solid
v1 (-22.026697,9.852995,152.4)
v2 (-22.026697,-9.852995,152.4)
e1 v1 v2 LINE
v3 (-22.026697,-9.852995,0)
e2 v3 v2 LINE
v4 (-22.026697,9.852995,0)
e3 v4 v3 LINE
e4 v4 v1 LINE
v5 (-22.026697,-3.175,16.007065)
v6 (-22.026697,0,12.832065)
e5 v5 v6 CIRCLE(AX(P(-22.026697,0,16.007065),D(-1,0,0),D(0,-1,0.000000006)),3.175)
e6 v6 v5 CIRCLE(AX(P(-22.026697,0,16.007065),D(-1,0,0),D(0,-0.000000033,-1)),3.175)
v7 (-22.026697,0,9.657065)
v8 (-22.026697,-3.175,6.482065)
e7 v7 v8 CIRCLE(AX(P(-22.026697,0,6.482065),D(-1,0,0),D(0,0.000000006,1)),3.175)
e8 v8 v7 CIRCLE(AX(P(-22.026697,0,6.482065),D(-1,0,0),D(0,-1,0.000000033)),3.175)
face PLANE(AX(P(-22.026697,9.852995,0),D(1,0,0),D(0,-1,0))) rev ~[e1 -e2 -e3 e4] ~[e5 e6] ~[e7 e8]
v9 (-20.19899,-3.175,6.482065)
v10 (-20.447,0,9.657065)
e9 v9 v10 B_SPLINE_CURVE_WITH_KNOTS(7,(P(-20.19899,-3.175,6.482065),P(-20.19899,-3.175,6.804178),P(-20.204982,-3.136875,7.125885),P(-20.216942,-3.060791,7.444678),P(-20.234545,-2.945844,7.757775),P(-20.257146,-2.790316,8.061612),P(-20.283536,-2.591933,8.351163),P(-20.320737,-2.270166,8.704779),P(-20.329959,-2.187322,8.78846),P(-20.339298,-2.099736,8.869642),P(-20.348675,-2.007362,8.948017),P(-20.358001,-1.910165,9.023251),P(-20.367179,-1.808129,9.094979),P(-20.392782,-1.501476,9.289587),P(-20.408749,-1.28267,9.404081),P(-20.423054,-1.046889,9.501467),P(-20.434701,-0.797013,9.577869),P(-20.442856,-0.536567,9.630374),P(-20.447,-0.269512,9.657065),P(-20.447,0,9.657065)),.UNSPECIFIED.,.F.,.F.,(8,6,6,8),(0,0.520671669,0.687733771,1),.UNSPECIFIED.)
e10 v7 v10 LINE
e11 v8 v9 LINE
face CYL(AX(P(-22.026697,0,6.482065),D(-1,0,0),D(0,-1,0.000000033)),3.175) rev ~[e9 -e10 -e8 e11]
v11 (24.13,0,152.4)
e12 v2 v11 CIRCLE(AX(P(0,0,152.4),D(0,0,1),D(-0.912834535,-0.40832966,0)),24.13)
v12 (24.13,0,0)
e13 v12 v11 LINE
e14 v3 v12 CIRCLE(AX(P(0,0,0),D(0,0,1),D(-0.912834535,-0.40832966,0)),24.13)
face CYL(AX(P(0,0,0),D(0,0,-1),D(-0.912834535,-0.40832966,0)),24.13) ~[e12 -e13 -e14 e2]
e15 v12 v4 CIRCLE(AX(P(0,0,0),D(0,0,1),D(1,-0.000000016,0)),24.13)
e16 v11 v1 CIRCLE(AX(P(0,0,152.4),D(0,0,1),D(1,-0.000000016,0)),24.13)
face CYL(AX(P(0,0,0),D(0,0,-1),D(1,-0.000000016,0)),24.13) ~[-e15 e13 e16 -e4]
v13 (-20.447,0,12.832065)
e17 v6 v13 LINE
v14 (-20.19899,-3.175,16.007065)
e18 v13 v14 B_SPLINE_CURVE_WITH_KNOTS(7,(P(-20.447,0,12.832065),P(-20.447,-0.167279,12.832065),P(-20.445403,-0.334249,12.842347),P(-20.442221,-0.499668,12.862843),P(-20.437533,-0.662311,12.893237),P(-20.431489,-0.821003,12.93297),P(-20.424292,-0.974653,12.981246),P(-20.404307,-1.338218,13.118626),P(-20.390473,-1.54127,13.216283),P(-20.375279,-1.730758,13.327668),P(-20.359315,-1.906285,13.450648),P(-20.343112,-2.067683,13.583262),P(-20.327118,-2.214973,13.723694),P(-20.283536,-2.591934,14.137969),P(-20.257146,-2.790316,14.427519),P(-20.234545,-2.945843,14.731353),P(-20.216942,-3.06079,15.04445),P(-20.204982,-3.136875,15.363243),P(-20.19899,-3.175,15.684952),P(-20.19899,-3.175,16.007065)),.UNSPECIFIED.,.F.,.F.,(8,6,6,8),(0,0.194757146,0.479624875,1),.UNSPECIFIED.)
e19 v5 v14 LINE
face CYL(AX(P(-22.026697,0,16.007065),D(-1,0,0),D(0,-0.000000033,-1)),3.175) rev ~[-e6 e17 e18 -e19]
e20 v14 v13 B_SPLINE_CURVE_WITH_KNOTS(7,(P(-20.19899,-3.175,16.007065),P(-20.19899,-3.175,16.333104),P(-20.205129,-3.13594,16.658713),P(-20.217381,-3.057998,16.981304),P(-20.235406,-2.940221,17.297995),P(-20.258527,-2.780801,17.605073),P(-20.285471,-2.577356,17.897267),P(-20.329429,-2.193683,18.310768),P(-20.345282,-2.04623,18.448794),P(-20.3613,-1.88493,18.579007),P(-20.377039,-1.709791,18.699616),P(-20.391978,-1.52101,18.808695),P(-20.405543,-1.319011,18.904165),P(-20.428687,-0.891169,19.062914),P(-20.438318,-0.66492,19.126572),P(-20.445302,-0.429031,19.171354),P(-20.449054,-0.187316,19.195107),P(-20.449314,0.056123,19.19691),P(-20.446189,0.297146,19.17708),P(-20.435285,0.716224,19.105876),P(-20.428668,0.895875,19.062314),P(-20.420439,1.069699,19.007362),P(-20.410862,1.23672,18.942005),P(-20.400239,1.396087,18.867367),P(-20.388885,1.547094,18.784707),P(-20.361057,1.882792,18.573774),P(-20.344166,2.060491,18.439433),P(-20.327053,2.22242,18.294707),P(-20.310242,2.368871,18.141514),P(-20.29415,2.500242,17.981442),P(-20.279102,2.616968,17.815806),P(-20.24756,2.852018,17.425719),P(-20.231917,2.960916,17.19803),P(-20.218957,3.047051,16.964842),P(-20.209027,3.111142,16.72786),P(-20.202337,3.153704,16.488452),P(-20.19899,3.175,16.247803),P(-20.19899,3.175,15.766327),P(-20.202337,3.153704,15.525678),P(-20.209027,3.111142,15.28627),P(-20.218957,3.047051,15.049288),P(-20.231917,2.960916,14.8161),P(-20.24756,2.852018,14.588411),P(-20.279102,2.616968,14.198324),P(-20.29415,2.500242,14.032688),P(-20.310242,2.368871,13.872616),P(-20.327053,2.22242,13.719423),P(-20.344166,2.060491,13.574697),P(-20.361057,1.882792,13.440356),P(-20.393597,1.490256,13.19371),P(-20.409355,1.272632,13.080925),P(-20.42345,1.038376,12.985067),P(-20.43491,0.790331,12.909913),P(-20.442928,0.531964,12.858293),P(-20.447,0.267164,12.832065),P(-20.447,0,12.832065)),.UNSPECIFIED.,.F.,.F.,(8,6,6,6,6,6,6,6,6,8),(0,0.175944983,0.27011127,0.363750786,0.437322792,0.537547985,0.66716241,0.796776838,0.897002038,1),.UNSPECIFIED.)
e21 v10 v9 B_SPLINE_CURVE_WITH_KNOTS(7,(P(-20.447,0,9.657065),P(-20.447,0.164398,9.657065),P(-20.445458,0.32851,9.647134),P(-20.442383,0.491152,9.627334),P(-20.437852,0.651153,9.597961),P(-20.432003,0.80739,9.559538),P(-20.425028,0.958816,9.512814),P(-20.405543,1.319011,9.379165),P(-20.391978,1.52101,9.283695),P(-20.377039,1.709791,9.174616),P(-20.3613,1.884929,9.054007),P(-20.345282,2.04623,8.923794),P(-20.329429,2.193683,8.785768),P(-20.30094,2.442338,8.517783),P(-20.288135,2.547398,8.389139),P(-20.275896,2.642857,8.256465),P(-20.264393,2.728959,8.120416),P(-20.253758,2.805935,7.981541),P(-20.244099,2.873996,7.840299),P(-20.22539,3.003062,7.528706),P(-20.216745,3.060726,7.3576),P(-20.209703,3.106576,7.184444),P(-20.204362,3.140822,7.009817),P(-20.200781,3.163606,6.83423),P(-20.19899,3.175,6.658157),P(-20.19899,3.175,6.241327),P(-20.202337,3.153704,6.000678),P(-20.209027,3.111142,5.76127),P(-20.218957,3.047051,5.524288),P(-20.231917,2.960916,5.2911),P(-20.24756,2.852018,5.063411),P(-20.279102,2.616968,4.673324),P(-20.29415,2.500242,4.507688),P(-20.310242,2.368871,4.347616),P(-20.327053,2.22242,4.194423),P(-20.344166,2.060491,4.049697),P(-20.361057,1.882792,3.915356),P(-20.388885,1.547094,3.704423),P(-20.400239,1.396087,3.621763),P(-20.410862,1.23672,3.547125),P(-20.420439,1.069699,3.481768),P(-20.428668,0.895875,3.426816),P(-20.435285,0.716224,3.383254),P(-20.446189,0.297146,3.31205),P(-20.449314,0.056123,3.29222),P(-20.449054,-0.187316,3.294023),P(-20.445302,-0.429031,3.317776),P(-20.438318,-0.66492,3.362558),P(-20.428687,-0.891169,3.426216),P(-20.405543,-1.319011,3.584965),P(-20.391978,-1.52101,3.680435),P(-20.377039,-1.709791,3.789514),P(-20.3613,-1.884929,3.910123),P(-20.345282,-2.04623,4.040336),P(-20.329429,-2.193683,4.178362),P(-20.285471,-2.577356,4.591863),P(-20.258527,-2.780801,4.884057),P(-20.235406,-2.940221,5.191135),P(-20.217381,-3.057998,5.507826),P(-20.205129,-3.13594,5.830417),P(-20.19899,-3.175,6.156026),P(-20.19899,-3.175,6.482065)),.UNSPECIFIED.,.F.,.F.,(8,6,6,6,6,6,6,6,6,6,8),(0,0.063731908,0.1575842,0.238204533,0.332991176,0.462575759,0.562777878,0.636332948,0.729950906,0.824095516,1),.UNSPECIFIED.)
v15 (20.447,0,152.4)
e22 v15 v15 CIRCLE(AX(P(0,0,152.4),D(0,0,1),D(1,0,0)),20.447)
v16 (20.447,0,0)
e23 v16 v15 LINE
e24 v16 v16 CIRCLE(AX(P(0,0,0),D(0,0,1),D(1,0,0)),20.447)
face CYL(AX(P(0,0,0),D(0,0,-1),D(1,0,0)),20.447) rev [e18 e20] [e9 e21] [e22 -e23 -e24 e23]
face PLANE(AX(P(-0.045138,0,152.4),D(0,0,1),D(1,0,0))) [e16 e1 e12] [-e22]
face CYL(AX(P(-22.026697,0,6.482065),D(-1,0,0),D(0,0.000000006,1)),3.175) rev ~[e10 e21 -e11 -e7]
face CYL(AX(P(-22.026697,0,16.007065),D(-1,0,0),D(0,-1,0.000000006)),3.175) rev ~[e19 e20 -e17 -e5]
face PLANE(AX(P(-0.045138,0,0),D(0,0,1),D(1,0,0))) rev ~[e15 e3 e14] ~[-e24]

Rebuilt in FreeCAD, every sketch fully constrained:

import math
import FreeCAD as App
import Part
import Sketcher
from FreeCAD import Vector
Q = App.Units.Quantity

doc = App.newDocument("Part")
body = doc.addObject("PartDesign::Body", "Body")

sketch1 = body.newObject("Sketcher::SketchObject", "Sketch")
sketch1.AttachmentSupport = (doc.getObject("XY_Plane"), [""])
sketch1.MapMode = "FlatFace"
sketch1.addGeometry([
    Part.ArcOfCircle(Part.Circle(Vector(0, 0, 0), Vector(0, 0, 1), 24), math.radians(-156), math.radians(0)),
    Part.ArcOfCircle(Part.Circle(Vector(0, 0, 0), Vector(0, 0, 1), 24), math.radians(0), math.radians(156)),
    Part.LineSegment(Vector(-22, 10, 0), Vector(-22, -10, 0)),
    Part.Circle(Vector(0, 0, 0), Vector(0, 0, 1), 20),
], False)
sketch1.addConstraint([
    Sketcher.Constraint("Tangent", 0, 2, 1, 1),
    Sketcher.Constraint("Coincident", 1, 2, 2, 1),
    Sketcher.Constraint("Coincident", 2, 2, 0, 1),
    Sketcher.Constraint("Vertical", 2),
    Sketcher.Constraint("Coincident", 0, 3, -1, 1),
    Sketcher.Constraint("Coincident", 3, 3, -1, 1),
    Sketcher.Constraint("Equal", 0, 1),
    Sketcher.Constraint("PointOnObject", 0, 2, -1),
    Sketcher.Constraint("Diameter", 3, Q("1.61 in")),
    Sketcher.Constraint("Radius", 0, Q("0.95 in")),
    Sketcher.Constraint("DistanceY", 2, 2, 2, 1, Q("19.70599 mm")),
])
pad1 = body.newObject("PartDesign::Pad", "Pad")
pad1.Profile = sketch1
pad1.Length = Q("6 in")

sketch2 = body.newObject("Sketcher::SketchObject", "Sketch001")
sketch2.AttachmentSupport = (doc.getObject("YZ_Plane"), [""])
sketch2.MapMode = "FlatFace"
sketch2.AttachmentOffset = App.Placement(Vector(0, 0, -22.026697), App.Rotation())
sketch2.addGeometry([
    Part.ArcOfCircle(Part.Circle(Vector(0, 16, 0), Vector(0, 0, 1), 3.2), math.radians(-90), math.radians(180)),
    Part.ArcOfCircle(Part.Circle(Vector(0, 16, 0), Vector(0, 0, 1), 3.2), math.radians(-180), math.radians(-90)),
    Part.ArcOfCircle(Part.Circle(Vector(0, 6.5, 0), Vector(0, 0, 1), 3.2), math.radians(-180), math.radians(90)),
    Part.ArcOfCircle(Part.Circle(Vector(0, 6.5, 0), Vector(0, 0, 1), 3.2), math.radians(90), math.radians(180)),
], False)
sketch2.addConstraint([
    Sketcher.Constraint("Tangent", 0, 1, 1, 2),
    Sketcher.Constraint("Coincident", 1, 1, 0, 2),
    Sketcher.Constraint("Tangent", 2, 1, 3, 2),
    Sketcher.Constraint("Coincident", 3, 1, 2, 2),
    Sketcher.Constraint("Equal", 1, 2),
    Sketcher.Constraint("PointOnObject", 0, 3, -2),
    Sketcher.Constraint("PointOnObject", 2, 3, -2),
    Sketcher.Constraint("PointOnObject", 0, 1, -2),
    Sketcher.Constraint("PointOnObject", 3, 1, -2),
    Sketcher.Constraint("Horizontal", 0, 3, 1, 1),
    Sketcher.Constraint("Horizontal", 3, 3, 2, 1),
    Sketcher.Constraint("Radius", 0, Q("0.125 in")),
    Sketcher.Constraint("DistanceY", 2, 3, 0, 1, Q("0.25 in")),
    Sketcher.Constraint("DistanceY", -1, 1, 0, 3, Q("16.007065 mm")),
])
pocket1 = body.newObject("PartDesign::Pocket", "Pocket")
pocket1.Profile = sketch2
pocket1.Length = Q("1 in")
pocket1.Reversed = True

doc.recompute()
